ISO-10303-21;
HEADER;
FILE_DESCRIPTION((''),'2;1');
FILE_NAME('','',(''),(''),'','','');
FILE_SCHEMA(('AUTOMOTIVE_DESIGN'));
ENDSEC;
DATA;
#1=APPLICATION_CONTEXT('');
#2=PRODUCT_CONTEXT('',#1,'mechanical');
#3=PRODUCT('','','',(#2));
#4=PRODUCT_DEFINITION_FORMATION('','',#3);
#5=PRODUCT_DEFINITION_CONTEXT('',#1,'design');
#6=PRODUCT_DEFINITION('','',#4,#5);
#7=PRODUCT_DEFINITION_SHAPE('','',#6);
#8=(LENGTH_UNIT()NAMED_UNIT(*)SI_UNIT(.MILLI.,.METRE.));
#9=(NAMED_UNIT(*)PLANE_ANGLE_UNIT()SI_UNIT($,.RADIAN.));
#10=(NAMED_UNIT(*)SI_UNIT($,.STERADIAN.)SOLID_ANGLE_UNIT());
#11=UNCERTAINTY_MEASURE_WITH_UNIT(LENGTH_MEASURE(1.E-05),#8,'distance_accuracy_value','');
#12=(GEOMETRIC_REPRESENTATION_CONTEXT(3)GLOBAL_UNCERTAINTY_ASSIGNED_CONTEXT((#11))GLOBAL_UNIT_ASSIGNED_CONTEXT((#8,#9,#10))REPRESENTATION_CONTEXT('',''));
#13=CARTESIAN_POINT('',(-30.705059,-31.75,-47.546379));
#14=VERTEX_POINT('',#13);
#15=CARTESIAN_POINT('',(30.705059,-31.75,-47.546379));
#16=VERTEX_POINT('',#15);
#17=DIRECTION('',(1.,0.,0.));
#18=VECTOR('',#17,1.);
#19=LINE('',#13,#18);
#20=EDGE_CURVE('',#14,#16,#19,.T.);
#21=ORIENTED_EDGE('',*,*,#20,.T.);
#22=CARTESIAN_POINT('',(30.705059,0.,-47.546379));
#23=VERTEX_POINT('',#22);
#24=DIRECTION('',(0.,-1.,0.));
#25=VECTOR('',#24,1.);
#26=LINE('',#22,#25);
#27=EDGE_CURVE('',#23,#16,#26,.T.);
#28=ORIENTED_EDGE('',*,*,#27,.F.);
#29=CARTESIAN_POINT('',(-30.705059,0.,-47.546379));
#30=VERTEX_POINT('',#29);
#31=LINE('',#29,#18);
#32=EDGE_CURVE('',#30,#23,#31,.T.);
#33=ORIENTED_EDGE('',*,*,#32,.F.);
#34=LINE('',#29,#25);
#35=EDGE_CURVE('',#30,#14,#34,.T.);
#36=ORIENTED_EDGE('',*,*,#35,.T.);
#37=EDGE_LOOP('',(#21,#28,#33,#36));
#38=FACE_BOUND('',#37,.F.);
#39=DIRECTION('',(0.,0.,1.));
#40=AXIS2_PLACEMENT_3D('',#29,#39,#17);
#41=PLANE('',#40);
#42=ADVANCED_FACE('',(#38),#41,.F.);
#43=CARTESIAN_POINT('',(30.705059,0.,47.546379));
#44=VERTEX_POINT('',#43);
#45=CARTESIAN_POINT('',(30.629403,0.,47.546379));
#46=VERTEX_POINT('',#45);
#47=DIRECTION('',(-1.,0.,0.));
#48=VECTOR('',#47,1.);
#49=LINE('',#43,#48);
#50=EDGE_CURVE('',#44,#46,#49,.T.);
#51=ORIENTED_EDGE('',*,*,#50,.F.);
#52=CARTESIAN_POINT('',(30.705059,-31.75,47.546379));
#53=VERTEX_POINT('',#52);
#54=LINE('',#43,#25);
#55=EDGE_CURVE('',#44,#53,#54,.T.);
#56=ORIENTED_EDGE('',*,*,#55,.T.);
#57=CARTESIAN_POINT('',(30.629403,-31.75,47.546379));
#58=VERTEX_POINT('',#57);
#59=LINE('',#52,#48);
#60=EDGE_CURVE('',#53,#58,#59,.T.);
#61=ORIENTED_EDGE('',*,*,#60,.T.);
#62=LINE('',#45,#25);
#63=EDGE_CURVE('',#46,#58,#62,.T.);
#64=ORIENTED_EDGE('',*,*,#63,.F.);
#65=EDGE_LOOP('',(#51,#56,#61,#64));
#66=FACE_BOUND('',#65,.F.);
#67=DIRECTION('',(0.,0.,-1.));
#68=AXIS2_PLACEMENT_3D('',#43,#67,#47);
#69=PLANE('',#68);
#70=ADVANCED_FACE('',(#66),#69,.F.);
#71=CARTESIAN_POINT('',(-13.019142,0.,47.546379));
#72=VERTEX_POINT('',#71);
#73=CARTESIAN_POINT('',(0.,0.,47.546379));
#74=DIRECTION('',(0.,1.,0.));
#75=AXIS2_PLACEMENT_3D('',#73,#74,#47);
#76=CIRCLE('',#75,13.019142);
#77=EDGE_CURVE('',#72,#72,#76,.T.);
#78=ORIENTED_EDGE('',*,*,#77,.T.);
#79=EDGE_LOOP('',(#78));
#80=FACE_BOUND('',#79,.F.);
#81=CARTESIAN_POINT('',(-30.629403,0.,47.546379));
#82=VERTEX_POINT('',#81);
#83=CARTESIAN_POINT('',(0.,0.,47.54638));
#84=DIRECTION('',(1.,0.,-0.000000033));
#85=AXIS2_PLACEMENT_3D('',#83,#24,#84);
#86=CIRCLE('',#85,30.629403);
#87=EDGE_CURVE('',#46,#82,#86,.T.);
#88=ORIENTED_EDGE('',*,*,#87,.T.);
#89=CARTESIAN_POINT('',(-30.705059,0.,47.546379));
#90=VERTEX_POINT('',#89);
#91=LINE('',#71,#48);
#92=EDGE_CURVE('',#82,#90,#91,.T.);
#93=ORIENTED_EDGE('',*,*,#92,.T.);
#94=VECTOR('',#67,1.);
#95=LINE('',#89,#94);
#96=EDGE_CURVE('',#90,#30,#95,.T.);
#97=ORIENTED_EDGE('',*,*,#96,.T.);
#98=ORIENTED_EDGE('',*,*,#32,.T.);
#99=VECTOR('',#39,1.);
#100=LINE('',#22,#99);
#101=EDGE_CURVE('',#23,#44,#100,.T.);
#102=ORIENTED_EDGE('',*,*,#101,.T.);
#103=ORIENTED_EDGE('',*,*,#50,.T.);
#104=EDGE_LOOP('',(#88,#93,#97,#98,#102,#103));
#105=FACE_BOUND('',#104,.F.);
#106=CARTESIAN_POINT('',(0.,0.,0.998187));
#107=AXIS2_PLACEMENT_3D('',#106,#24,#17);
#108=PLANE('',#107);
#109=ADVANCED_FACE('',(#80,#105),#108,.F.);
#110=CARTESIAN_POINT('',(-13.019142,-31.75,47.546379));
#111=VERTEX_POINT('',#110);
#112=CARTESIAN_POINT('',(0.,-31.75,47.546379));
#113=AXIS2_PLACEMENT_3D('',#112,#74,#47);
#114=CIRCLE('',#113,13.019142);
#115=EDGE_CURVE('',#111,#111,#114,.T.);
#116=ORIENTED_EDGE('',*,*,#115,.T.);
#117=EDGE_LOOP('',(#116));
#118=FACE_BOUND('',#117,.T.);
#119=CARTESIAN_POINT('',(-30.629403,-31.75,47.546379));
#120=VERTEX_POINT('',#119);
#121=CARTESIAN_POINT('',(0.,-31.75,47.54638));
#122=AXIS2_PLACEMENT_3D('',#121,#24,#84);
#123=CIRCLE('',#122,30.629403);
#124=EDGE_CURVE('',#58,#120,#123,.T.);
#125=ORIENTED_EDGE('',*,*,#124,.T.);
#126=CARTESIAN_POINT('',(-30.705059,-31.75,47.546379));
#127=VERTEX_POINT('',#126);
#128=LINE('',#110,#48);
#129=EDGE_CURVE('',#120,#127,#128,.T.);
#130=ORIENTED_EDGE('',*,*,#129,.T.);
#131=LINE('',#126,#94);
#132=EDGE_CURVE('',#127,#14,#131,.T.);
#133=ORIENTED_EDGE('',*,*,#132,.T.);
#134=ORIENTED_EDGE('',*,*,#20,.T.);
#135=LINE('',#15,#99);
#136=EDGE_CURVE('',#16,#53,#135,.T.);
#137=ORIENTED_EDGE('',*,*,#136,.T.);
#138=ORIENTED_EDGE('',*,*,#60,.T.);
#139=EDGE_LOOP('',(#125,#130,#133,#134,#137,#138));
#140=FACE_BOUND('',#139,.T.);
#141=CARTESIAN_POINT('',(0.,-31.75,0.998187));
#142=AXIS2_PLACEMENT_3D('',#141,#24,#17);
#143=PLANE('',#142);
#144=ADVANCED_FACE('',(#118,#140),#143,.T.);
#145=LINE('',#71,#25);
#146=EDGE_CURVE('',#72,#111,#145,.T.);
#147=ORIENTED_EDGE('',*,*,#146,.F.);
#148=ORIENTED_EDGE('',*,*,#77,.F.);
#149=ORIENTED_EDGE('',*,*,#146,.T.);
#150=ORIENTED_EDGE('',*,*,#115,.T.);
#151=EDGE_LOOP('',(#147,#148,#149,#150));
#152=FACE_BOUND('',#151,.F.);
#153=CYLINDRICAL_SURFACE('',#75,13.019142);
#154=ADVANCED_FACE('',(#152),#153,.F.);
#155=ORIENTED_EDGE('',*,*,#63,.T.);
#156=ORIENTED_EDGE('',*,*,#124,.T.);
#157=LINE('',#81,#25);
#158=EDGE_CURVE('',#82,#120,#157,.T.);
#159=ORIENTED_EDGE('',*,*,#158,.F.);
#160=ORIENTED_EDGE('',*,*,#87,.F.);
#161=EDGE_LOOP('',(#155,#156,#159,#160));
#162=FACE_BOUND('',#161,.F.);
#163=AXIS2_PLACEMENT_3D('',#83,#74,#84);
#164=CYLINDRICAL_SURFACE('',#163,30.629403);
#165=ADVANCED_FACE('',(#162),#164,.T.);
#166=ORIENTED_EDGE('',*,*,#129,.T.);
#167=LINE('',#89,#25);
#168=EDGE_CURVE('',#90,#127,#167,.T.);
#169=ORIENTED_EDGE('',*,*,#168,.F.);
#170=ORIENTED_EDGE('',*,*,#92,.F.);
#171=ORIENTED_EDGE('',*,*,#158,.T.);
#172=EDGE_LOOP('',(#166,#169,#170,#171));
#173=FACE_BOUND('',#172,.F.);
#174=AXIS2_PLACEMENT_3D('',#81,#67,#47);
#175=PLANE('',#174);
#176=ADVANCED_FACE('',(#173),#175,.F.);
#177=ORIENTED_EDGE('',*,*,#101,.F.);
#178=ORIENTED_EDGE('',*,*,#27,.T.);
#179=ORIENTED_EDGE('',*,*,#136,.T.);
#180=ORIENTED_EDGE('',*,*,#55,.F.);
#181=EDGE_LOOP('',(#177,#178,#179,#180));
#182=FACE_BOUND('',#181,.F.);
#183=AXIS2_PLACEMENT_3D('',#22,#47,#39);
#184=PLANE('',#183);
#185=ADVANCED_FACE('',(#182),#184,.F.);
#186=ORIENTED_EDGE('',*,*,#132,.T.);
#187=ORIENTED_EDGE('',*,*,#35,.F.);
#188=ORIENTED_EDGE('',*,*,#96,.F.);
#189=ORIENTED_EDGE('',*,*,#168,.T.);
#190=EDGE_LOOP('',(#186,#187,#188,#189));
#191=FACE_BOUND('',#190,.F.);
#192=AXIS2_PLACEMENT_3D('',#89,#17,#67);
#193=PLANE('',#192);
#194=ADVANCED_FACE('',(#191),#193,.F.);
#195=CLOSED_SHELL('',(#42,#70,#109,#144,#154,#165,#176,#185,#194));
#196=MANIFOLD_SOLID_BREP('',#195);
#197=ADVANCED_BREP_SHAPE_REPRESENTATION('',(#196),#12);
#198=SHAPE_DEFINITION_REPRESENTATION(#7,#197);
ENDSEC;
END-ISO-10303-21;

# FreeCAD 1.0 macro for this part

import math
import FreeCAD as App
import Part
import Sketcher

V = App.Vector
Q = App.Units.Quantity

doc = App.newDocument("Part")
body = doc.addObject("PartDesign::Body", "Body")

# Sketch on XZ plane
sketch1 = doc.addObject("Sketcher::SketchObject", "Sketch")
body.addObject(sketch1)
sketch1.AttachmentSupport = (doc.XZ_Plane, [""])
sketch1.MapMode = "FlatFace"
sketch1.addGeometry([
    Part.LineSegment(V(-30.71, -47.55, 0), V(30.71, -47.55, 0)),  # 0
    Part.LineSegment(V(30.71, -47.55, 0), V(30.71, 47.55, 0)),  # 1
    Part.LineSegment(V(30.71, 47.55, 0), V(30.63, 47.55, 0)),  # 2
    Part.ArcOfCircle(Part.Circle(V(0, 47.55, 0), V(0, 0, 1), 30.63), math.radians(0), math.radians(180)),  # 3
    Part.LineSegment(V(-30.63, 47.55, 0), V(-30.71, 47.55, 0)),  # 4
    Part.LineSegment(V(-30.71, 47.55, 0), V(-30.71, -47.55, 0)),  # 5
    Part.Circle(V(0, 47.55, 0), V(0, 0, 1), 13.02),  # 6
], False)
sketch1.addConstraint([
    Sketcher.Constraint("Coincident", 0, 2, 1, 1),
    Sketcher.Constraint("Coincident", 1, 2, 2, 1),
    Sketcher.Constraint("Coincident", 2, 2, 3, 1),
    Sketcher.Constraint("Coincident", 3, 2, 4, 1),
    Sketcher.Constraint("Coincident", 4, 2, 5, 1),
    Sketcher.Constraint("Coincident", 5, 2, 0, 1),
    Sketcher.Constraint("Horizontal", 0),
    Sketcher.Constraint("Vertical", 1),
    Sketcher.Constraint("Horizontal", 2),
    Sketcher.Constraint("Horizontal", 4),
    Sketcher.Constraint("Vertical", 5),
    Sketcher.Constraint("Coincident", 6, 3, 3, 3),
    Sketcher.Constraint("Symmetric", 0, 2, 4, 2, -1, 1),
    Sketcher.Constraint("Symmetric", 2, 2, 3, 2, -2),
    Sketcher.Constraint("Horizontal", 6, 3, 1, 2),
    Sketcher.Constraint("Diameter", 6, Q("26.038284 mm")),
    Sketcher.Constraint("Radius", 3, Q("30.629403 mm")),
    Sketcher.Constraint("DistanceY", 1, 1, 1, 2, Q("95.092758 mm")),
    Sketcher.Constraint("DistanceX", 0, 1, 0, 2, Q("61.410118 mm")),
])
pad1 = doc.addObject("PartDesign::Pad", "Pad")
body.addObject(pad1)
pad1.Profile = sketch1
pad1.Length = Q("1.25 in")

doc.recompute()
